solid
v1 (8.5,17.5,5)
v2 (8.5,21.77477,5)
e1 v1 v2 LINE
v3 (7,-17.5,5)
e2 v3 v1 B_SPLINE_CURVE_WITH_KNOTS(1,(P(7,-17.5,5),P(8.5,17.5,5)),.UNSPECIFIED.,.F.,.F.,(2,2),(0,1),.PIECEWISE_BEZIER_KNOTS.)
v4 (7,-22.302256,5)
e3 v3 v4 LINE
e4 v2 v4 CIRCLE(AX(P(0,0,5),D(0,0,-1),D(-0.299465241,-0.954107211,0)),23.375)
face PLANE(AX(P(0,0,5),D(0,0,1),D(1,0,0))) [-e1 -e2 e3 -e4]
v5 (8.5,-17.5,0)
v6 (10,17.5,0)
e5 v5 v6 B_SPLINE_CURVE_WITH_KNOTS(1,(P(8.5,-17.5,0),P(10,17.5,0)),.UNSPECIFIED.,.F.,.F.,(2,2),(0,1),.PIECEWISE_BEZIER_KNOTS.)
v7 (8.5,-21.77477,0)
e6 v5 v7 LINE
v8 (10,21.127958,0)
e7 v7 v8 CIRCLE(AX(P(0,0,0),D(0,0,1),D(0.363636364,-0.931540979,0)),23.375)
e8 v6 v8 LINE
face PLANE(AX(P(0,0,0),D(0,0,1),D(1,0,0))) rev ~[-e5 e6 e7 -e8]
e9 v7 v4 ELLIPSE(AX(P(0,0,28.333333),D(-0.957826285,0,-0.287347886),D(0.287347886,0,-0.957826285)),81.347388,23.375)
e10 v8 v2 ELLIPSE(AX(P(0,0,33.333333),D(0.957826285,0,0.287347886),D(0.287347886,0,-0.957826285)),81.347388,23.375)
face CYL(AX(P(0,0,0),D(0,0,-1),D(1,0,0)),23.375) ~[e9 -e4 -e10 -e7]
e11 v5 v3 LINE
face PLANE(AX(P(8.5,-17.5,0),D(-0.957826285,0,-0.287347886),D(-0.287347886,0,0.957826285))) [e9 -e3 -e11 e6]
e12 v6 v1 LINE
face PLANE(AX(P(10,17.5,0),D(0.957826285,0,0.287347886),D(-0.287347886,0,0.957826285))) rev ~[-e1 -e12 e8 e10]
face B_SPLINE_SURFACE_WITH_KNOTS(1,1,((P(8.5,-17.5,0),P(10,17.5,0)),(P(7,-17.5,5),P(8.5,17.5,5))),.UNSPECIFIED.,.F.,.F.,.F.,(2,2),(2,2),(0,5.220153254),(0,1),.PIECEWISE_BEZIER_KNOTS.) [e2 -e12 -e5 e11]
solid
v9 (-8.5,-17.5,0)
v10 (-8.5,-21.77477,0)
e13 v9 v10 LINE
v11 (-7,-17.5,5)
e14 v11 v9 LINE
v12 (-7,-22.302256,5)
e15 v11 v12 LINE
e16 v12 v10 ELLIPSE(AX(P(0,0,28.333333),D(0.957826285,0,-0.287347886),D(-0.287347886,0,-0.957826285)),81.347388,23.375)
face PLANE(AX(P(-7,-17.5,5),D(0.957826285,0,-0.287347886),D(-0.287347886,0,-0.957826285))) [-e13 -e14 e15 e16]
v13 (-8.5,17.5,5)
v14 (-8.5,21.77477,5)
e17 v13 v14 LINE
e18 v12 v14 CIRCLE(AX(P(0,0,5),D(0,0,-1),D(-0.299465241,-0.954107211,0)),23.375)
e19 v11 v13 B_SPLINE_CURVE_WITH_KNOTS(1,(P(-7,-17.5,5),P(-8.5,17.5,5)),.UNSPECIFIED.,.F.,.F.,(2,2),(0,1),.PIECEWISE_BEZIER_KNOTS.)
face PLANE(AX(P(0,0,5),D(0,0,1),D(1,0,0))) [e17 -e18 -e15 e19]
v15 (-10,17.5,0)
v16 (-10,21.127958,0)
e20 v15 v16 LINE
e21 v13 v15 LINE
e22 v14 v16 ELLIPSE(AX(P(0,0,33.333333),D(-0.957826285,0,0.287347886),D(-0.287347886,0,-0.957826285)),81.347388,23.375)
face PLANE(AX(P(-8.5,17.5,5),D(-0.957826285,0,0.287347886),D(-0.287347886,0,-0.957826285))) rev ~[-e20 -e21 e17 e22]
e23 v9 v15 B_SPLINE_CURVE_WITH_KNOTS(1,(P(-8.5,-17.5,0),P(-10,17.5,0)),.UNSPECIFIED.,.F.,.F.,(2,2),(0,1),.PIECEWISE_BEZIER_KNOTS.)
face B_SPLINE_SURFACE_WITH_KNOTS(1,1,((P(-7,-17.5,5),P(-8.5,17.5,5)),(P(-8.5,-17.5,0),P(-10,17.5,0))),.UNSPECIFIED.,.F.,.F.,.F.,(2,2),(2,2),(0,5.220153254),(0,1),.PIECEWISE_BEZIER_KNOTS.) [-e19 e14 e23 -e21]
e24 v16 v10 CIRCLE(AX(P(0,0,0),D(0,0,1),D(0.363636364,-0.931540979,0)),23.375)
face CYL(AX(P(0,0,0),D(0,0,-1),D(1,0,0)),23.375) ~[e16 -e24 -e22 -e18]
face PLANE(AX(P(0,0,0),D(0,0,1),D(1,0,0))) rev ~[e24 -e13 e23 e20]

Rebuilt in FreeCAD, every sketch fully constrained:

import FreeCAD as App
import Part
import Sketcher
from FreeCAD import Vector
Q = App.Units.Quantity

doc = App.newDocument("Part")
body = doc.addObject("PartDesign::Body", "Body")
body.AllowCompound = True

sketch1 = doc.addObject("Sketcher::SketchObject", "Sketch")
body.addObject(sketch1)
sketch1.AttachmentSupport = (doc.XY_Plane, [""])
sketch1.MapMode = "FlatFace"
sketch1.addGeometry(Part.Circle(Vector(0, 0, 0), Vector(0, 0, 1), 23.375), False)
sketch1.addConstraint(Sketcher.Constraint("Coincident", 0, 3, -1, 1))
sketch1.addConstraint(Sketcher.Constraint("Diameter", 0, Q("46.75 mm")))
pad1 = doc.addObject("PartDesign::Pad", "Pad")
body.addObject(pad1)
pad1.Profile = sketch1
pad1.Length = 5

sketch2 = doc.addObject("Sketcher::SketchObject", "Sketch001")
body.addObject(sketch2)
sketch2.AttachmentSupport = (doc.XZ_Plane, [""])
sketch2.MapMode = "FlatFace"
sketch2.AttachmentOffset = App.Placement(Vector(0, 0, 17.5), App.Rotation())
sketch2.addGeometry(Part.LineSegment(Vector(-7, 5, 0), Vector(-8.5, 0, 0)), False)
sketch2.addGeometry(Part.LineSegment(Vector(-8.5, 0, 0), Vector(8.5, 0, 0)), False)
sketch2.addGeometry(Part.LineSegment(Vector(8.5, 0, 0), Vector(7, 5, 0)), False)
sketch2.addGeometry(Part.LineSegment(Vector(7, 5, 0), Vector(-7, 5, 0)), False)
sketch2.addConstraint(Sketcher.Constraint("Coincident", 0, 2, 1, 1))
sketch2.addConstraint(Sketcher.Constraint("Coincident", 1, 2, 2, 1))
sketch2.addConstraint(Sketcher.Constraint("Coincident", 2, 2, 3, 1))
sketch2.addConstraint(Sketcher.Constraint("Coincident", 3, 2, 0, 1))
sketch2.addConstraint(Sketcher.Constraint("Horizontal", 1))
sketch2.addConstraint(Sketcher.Constraint("Horizontal", 3))
sketch2.addConstraint(Sketcher.Constraint("Symmetric", 0, 2, 1, 2, -1, 1))
sketch2.addConstraint(Sketcher.Constraint("Equal", 0, 2))
sketch2.addConstraint(Sketcher.Constraint("DistanceX", 1, 1, 1, 2, Q("17 mm")))
sketch2.addConstraint(Sketcher.Constraint("DistanceX", 3, 2, 3, 1, Q("14 mm")))
sketch2.addConstraint(Sketcher.Constraint("DistanceY", -1, 1, 2, 2, Q("5 mm")))

sketch3 = doc.addObject("Sketcher::SketchObject", "Sketch002")
body.addObject(sketch3)
sketch3.AttachmentSupport = (doc.XZ_Plane, [""])
sketch3.MapMode = "FlatFace"
sketch3.AttachmentOffset = App.Placement(Vector(0, 0, -17.5), App.Rotation())
sketch3.addGeometry(Part.LineSegment(Vector(-10, 0, 0), Vector(10, 0, 0)), False)
sketch3.addGeometry(Part.LineSegment(Vector(10, 0, 0), Vector(8.5, 5, 0)), False)
sketch3.addGeometry(Part.LineSegment(Vector(8.5, 5, 0), Vector(-8.5, 5, 0)), False)
sketch3.addGeometry(Part.LineSegment(Vector(-8.5, 5, 0), Vector(-10, 0, 0)), False)
sketch3.addConstraint(Sketcher.Constraint("Coincident", 0, 2, 1, 1))
sketch3.addConstraint(Sketcher.Constraint("Coincident", 1, 2, 2, 1))
sketch3.addConstraint(Sketcher.Constraint("Coincident", 2, 2, 3, 1))
sketch3.addConstraint(Sketcher.Constraint("Coincident", 3, 2, 0, 1))
sketch3.addConstraint(Sketcher.Constraint("Horizontal", 0))
sketch3.addConstraint(Sketcher.Constraint("Horizontal", 2))
sketch3.addConstraint(Sketcher.Constraint("Symmetric", 0, 2, 3, 2, -1, 1))
sketch3.addConstraint(Sketcher.Constraint("Equal", 1, 3))
sketch3.addConstraint(Sketcher.Constraint("DistanceX", 0, 1, 0, 2, Q("20 mm")))
sketch3.addConstraint(Sketcher.Constraint("DistanceX", 2, 2, 2, 1, Q("17 mm")))
sketch3.addConstraint(Sketcher.Constraint("DistanceY", -1, 1, 1, 2, Q("5 mm")))

subtractiveloft = doc.addObject("PartDesign::SubtractiveLoft", "SubtractiveLoft")
body.addObject(subtractiveloft)
subtractiveloft.Profile = sketch2
subtractiveloft.Sections = [sketch3]

sketch4 = doc.addObject("Sketcher::SketchObject", "Sketch003")
body.addObject(sketch4)
sketch4.AttachmentSupport = (doc.XZ_Plane, [""])
sketch4.MapMode = "FlatFace"
sketch4.AttachmentOffset = App.Placement(Vector(0, 0, 17.5), App.Rotation())
sketch4.addGeometry(Part.LineSegment(Vector(-7, 5, 0), Vector(-8.5, 0, 0)), False)
sketch4.addGeometry(Part.LineSegment(Vector(-8.5, 0, 0), Vector(8.5, 0, 0)), False)
sketch4.addGeometry(Part.LineSegment(Vector(8.5, 0, 0), Vector(7, 5, 0)), False)
sketch4.addGeometry(Part.LineSegment(Vector(7, 5, 0), Vector(-7, 5, 0)), False)
sketch4.addConstraint(Sketcher.Constraint("Coincident", 0, 2, 1, 1))
sketch4.addConstraint(Sketcher.Constraint("Coincident", 1, 2, 2, 1))
sketch4.addConstraint(Sketcher.Constraint("Coincident", 2, 2, 3, 1))
sketch4.addConstraint(Sketcher.Constraint("Coincident", 3, 2, 0, 1))
sketch4.addConstraint(Sketcher.Constraint("Horizontal", 1))
sketch4.addConstraint(Sketcher.Constraint("Horizontal", 3))
sketch4.addConstraint(Sketcher.Constraint("Symmetric", 0, 2, 1, 2, -1, 1))
sketch4.addConstraint(Sketcher.Constraint("Equal", 0, 2))
sketch4.addConstraint(Sketcher.Constraint("DistanceX", 1, 1, 1, 2, Q("17 mm")))
sketch4.addConstraint(Sketcher.Constraint("DistanceX", 3, 2, 3, 1, Q("14 mm")))
sketch4.addConstraint(Sketcher.Constraint("DistanceY", -1, 1, 2, 2, Q("5 mm")))
pocket1 = doc.addObject("PartDesign::Pocket", "Pocket")
body.addObject(pocket1)
pocket1.Profile = sketch4
pocket1.Length = 25
pocket1.Reversed = True

sketch5 = doc.addObject("Sketcher::SketchObject", "Sketch004")
body.addObject(sketch5)
sketch5.AttachmentSupport = (doc.XZ_Plane, [""])
sketch5.MapMode = "FlatFace"
sketch5.AttachmentOffset = App.Placement(Vector(0, 0, -17.5), App.Rotation())
sketch5.addGeometry(Part.LineSegment(Vector(-10, 0, 0), Vector(10, 0, 0)), False)
sketch5.addGeometry(Part.LineSegment(Vector(10, 0, 0), Vector(8.5, 5, 0)), False)
sketch5.addGeometry(Part.LineSegment(Vector(8.5, 5, 0), Vector(-8.5, 5, 0)), False)
sketch5.addGeometry(Part.LineSegment(Vector(-8.5, 5, 0), Vector(-10, 0, 0)), False)
sketch5.addConstraint(Sketcher.Constraint("Coincident", 0, 2, 1, 1))
sketch5.addConstraint(Sketcher.Constraint("Coincident", 1, 2, 2, 1))
sketch5.addConstraint(Sketcher.Constraint("Coincident", 2, 2, 3, 1))
sketch5.addConstraint(Sketcher.Constraint("Coincident", 3, 2, 0, 1))
sketch5.addConstraint(Sketcher.Constraint("Horizontal", 0))
sketch5.addConstraint(Sketcher.Constraint("Horizontal", 2))
sketch5.addConstraint(Sketcher.Constraint("Symmetric", 0, 2, 3, 2, -1, 1))
sketch5.addConstraint(Sketcher.Constraint("Equal", 1, 3))
sketch5.addConstraint(Sketcher.Constraint("DistanceX", 0, 1, 0, 2, Q("20 mm")))
sketch5.addConstraint(Sketcher.Constraint("DistanceX", 2, 2, 2, 1, Q("17 mm")))
sketch5.addConstraint(Sketcher.Constraint("DistanceY", -1, 1, 1, 2, Q("5 mm")))
pocket2 = doc.addObject("PartDesign::Pocket", "Pocket001")
body.addObject(pocket2)
pocket2.Profile = sketch5
pocket2.Length = 25

doc.recompute()
